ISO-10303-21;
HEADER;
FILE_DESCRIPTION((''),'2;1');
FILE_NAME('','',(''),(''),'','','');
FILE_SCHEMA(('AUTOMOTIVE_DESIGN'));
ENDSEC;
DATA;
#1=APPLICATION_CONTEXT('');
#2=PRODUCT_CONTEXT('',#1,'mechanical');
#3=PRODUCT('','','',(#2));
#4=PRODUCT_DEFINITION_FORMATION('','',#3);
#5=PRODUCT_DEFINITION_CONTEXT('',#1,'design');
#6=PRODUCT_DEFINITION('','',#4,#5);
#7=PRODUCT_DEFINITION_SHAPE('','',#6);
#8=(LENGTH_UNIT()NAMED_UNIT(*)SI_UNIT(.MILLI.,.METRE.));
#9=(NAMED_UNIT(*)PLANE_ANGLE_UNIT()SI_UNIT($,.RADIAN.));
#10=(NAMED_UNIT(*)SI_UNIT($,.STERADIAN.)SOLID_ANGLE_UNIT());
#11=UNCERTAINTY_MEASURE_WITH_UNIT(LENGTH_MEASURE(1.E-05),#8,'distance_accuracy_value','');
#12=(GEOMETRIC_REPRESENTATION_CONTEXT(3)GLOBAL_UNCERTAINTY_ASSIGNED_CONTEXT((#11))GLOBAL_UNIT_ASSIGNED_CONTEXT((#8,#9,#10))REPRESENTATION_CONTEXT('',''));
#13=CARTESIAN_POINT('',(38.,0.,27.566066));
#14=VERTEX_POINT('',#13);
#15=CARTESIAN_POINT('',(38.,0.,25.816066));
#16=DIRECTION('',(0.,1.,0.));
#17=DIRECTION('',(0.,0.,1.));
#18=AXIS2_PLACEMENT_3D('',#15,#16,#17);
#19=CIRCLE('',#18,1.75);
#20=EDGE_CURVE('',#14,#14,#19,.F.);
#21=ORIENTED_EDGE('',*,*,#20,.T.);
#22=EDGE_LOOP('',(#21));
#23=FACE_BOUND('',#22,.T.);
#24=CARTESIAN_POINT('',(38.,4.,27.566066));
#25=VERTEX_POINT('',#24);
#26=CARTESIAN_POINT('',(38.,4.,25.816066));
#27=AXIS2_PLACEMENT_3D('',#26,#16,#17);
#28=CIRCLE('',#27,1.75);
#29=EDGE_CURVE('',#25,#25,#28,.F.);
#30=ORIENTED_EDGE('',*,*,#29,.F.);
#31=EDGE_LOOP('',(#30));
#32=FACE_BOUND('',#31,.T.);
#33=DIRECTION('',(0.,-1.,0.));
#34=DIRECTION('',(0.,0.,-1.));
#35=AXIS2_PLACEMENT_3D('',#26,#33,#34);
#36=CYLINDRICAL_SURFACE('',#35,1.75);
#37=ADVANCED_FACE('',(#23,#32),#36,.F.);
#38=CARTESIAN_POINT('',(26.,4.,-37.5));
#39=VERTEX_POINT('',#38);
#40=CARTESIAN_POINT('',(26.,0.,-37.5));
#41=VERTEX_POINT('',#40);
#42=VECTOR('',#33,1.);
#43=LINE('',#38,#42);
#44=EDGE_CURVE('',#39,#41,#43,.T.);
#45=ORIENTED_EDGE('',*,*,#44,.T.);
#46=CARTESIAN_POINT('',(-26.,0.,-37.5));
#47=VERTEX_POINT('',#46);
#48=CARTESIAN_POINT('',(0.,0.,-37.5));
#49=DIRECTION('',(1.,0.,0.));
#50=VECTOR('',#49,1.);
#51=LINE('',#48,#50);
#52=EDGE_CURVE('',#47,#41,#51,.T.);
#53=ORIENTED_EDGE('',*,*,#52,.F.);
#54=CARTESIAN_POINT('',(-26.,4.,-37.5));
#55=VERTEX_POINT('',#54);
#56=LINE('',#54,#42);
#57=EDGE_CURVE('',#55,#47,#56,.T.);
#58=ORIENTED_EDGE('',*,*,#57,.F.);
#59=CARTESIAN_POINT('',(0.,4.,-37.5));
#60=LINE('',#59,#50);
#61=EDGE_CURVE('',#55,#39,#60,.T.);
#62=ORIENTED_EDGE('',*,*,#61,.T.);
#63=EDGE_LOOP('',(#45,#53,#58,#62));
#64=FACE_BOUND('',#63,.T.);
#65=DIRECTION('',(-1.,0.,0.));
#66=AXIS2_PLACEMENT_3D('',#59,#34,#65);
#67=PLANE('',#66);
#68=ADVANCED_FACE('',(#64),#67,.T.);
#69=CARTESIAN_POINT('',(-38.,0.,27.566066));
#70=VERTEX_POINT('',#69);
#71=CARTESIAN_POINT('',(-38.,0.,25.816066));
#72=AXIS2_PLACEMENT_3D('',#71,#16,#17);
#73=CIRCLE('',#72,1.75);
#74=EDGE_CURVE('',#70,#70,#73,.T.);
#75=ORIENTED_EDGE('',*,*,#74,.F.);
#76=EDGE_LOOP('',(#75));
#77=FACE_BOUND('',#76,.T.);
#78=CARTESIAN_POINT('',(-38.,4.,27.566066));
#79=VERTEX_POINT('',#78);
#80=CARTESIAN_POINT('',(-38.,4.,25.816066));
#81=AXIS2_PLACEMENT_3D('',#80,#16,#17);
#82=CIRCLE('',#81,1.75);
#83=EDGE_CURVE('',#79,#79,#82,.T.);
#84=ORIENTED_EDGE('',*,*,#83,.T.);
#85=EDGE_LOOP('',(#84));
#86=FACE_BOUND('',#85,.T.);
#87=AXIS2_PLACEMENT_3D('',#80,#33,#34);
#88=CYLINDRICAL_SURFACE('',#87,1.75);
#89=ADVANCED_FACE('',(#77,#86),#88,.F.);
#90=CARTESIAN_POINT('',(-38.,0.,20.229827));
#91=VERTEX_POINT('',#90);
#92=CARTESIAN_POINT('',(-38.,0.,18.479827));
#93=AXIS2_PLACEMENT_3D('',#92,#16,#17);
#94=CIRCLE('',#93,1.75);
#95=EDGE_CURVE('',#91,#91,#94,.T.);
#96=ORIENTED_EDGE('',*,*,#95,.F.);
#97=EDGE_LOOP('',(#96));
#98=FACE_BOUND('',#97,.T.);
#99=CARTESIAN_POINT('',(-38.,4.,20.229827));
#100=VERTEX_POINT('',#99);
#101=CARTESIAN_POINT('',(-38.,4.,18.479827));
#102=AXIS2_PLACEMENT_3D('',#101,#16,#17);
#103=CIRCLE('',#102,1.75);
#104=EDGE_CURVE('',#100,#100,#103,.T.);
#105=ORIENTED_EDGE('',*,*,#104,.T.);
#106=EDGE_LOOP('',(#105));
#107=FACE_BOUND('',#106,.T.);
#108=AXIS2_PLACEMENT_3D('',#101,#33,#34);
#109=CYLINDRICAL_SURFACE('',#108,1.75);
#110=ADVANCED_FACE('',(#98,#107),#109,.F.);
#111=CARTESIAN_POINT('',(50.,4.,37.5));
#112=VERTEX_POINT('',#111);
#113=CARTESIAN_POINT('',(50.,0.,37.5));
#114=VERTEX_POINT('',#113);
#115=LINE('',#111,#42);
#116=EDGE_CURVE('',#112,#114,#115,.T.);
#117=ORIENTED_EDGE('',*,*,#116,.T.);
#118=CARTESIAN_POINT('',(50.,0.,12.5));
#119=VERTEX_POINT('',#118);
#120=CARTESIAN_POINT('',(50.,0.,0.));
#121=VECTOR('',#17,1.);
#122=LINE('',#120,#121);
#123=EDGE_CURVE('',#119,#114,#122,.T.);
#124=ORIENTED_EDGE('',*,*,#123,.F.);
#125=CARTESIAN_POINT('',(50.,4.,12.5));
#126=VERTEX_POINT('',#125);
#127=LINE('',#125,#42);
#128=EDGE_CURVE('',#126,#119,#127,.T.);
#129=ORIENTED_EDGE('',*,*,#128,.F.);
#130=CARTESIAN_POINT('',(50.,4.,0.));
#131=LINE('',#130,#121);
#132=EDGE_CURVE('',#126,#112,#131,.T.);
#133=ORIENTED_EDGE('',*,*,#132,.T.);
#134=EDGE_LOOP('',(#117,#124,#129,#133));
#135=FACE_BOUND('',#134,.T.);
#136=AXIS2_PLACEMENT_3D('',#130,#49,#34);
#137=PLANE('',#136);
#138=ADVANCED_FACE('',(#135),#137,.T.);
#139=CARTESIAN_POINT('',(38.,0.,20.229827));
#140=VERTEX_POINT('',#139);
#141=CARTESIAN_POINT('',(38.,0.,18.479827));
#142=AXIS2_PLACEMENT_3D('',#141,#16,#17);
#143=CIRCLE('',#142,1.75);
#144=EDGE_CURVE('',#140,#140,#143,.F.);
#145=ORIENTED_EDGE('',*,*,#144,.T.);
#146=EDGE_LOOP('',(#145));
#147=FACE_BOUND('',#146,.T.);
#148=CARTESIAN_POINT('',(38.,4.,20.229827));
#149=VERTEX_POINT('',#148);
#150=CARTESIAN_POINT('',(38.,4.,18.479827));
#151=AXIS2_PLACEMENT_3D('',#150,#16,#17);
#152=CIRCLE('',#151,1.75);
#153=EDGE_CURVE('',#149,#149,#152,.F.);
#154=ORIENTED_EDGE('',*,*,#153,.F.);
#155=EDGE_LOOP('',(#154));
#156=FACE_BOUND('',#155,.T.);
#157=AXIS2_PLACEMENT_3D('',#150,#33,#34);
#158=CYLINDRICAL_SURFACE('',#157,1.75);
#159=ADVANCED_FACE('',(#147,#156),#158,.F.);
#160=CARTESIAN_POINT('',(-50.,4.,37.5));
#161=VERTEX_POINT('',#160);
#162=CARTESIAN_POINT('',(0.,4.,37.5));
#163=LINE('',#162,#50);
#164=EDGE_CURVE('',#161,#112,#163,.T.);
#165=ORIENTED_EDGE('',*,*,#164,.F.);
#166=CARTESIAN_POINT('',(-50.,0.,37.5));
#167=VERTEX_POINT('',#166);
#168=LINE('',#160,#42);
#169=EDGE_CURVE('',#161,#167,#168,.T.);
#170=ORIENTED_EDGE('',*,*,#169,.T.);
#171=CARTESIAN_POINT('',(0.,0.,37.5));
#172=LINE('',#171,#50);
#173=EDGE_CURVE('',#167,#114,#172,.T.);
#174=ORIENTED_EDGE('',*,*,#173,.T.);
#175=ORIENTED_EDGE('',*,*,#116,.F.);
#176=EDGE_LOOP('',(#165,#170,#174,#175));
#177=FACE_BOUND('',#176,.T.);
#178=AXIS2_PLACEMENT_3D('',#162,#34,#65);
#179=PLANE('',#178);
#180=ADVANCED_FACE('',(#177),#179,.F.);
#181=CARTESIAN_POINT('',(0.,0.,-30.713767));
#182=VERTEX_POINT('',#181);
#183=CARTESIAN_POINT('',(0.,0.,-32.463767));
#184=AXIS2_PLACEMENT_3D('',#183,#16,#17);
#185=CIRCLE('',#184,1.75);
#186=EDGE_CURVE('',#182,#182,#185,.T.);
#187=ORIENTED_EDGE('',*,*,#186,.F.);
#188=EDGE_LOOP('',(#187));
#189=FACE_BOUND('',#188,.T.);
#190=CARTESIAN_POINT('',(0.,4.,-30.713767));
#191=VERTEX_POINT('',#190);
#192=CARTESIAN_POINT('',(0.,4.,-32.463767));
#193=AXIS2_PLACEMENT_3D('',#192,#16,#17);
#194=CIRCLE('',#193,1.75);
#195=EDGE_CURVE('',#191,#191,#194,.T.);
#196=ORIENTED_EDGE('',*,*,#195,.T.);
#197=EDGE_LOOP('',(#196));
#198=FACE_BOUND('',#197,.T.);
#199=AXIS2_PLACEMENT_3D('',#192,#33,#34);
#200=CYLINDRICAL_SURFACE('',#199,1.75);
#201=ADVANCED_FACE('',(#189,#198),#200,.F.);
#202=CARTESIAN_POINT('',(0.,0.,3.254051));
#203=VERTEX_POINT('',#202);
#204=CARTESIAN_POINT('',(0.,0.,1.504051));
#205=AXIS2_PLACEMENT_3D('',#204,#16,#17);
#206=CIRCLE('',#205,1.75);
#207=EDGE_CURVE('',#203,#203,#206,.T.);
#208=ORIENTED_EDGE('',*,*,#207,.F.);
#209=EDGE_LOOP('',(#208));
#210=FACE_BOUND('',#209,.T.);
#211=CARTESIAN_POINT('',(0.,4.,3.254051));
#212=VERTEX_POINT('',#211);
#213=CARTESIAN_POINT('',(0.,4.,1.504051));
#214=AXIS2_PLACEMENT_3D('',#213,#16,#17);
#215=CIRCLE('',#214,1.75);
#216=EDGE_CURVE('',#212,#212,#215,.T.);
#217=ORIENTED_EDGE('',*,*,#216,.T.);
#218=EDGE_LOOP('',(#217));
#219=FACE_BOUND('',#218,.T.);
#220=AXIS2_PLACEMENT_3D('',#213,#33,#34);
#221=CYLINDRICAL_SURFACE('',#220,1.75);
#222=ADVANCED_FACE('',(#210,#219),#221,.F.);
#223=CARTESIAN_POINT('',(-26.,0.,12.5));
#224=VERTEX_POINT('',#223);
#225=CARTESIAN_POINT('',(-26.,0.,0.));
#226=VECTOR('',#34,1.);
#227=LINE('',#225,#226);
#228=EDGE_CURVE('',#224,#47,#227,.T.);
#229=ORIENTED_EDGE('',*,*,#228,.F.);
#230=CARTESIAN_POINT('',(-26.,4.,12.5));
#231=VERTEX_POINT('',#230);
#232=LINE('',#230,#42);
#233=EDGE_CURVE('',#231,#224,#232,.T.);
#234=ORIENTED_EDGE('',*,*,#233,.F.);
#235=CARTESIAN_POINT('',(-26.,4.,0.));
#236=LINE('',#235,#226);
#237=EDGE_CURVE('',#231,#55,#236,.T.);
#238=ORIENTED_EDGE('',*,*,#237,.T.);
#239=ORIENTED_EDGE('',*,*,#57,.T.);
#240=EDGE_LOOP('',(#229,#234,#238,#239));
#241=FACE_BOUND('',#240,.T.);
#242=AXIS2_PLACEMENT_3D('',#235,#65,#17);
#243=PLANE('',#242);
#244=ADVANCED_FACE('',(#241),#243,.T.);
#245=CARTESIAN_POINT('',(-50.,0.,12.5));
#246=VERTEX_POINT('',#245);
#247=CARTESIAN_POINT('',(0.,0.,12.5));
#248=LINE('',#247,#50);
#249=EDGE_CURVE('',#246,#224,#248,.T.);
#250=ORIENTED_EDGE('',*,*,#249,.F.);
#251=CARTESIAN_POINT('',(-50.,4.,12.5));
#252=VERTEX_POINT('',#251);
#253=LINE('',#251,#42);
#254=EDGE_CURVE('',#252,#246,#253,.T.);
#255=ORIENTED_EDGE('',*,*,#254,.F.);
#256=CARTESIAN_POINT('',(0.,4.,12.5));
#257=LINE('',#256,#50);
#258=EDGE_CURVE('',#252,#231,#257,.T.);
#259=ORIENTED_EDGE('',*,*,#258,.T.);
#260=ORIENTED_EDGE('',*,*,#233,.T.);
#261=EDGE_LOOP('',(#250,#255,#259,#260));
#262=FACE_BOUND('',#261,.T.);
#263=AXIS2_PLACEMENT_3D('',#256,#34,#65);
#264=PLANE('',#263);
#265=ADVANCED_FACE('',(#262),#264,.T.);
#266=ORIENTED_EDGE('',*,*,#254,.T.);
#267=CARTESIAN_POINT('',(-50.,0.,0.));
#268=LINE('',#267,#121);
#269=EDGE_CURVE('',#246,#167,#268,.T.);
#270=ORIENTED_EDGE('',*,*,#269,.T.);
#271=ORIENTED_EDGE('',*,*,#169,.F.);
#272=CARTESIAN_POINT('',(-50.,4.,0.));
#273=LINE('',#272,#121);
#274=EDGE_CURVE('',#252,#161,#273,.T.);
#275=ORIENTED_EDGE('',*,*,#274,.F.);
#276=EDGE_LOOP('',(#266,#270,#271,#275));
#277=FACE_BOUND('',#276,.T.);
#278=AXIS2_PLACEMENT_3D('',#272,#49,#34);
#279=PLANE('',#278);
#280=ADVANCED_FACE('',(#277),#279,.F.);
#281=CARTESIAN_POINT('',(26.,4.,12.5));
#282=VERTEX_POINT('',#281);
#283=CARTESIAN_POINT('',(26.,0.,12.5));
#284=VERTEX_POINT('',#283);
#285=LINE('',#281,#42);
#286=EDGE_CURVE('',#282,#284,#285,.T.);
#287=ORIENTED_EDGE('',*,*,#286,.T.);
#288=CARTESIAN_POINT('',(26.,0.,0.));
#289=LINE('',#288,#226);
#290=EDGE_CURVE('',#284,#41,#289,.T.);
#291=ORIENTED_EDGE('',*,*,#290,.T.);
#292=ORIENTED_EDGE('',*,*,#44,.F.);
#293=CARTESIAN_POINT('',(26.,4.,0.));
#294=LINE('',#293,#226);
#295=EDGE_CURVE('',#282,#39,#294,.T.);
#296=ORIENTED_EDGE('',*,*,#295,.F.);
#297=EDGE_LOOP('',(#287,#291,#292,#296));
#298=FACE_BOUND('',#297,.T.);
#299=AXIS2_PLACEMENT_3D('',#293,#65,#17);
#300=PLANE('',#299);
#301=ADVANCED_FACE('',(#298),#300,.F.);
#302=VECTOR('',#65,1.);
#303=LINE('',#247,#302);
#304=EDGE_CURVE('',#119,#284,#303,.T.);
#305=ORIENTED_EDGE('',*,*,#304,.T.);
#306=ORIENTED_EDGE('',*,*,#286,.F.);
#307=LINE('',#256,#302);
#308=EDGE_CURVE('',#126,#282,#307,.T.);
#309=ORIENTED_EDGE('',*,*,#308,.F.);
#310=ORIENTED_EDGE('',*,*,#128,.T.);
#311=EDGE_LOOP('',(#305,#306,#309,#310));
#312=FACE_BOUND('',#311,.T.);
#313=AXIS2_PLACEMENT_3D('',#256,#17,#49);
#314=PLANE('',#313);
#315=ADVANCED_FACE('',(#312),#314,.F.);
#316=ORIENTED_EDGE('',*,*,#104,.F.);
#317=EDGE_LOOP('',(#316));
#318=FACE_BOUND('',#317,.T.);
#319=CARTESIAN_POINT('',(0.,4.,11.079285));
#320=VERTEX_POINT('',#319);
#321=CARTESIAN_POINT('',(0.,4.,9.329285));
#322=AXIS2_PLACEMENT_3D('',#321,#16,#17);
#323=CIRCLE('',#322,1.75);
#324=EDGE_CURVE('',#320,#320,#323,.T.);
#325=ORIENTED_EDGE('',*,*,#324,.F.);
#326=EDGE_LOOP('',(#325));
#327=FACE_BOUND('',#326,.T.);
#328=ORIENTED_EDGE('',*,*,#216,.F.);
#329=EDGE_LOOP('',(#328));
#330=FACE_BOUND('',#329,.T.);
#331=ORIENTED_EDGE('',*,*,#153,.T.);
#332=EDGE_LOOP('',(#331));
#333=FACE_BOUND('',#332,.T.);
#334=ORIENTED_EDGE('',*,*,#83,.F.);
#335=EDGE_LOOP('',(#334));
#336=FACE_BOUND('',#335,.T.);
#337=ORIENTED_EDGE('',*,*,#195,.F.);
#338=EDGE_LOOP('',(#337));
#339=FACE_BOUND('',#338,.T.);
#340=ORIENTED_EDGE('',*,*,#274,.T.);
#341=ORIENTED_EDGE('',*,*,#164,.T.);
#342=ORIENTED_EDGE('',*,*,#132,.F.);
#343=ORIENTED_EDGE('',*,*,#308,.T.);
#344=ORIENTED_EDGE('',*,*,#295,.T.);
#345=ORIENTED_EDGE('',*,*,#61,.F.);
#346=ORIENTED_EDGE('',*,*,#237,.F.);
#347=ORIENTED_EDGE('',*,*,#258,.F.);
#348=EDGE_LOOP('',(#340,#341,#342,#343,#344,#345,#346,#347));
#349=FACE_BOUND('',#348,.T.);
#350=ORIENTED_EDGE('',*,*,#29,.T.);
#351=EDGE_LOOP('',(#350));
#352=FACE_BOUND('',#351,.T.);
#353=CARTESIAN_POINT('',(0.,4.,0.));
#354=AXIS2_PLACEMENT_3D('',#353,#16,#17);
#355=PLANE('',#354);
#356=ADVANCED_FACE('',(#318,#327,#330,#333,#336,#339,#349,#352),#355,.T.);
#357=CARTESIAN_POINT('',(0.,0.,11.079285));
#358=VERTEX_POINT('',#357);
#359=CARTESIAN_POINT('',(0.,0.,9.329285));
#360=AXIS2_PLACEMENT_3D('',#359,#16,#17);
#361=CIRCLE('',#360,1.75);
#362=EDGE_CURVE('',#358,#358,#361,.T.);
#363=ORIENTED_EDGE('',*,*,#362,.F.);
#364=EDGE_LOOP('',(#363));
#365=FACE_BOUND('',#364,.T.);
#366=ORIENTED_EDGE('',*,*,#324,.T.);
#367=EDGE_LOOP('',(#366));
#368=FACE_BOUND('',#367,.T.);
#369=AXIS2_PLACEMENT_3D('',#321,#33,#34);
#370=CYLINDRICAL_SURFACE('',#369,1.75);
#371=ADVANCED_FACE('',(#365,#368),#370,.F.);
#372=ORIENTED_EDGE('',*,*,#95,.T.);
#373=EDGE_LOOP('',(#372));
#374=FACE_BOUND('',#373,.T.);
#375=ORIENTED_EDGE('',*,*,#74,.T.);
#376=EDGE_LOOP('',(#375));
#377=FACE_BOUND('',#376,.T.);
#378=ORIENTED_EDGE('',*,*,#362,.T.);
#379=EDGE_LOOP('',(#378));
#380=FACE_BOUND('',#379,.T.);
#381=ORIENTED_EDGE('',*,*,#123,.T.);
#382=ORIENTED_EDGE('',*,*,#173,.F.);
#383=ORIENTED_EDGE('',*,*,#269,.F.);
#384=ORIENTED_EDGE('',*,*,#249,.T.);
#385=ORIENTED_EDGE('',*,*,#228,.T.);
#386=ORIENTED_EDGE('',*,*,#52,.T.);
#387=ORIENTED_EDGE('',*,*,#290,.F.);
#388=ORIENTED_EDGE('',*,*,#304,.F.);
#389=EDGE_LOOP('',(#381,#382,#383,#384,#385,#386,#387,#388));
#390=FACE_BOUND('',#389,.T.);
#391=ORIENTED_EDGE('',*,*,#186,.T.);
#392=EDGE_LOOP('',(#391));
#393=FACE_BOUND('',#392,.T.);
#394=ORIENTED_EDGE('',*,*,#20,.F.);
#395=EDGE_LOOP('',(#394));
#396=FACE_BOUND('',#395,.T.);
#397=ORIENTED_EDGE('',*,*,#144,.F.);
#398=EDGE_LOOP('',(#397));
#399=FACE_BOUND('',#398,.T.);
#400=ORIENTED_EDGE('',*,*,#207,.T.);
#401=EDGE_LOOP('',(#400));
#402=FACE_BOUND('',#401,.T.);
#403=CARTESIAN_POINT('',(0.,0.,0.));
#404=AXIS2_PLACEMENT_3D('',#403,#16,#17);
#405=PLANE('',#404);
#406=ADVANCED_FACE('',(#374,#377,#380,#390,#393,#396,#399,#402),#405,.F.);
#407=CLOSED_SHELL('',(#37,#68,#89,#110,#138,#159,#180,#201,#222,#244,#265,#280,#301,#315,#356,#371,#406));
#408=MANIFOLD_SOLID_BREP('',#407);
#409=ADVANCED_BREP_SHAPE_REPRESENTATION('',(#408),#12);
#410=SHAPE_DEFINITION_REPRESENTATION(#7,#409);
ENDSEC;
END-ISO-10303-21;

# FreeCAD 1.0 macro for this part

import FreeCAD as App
import Part
import Sketcher


def add_polygon(sketch, points):
    """Adds a closed chain of lines whose ends are joined by coincident constraints."""
    first, n = sketch.GeometryCount, len(points)
    for a, b in zip(points, points[1:] + points[:1]):
        sketch.addGeometry(Part.LineSegment(App.Vector(*a, 0), App.Vector(*b, 0)), False)
    for i in range(n):
        sketch.addConstraint(Sketcher.Constraint("Coincident", first + i, 2, first + (i + 1) % n, 1))

doc = App.newDocument("Part")
body = doc.addObject("PartDesign::Body", "Body")

sketch1 = body.newObject("Sketcher::SketchObject", "Sketch")
sketch1.AttachmentSupport = (doc.getObject("XZ_Plane"), [""])
sketch1.MapMode = "FlatFace"
add_polygon(sketch1, [(-26, 12.5), (-50, 12.5), (-50, 37.5), (50, 37.5), (50, 12.5), (26, 12.5), (26, -37.5), (-26, -37.5)])
sketch1.addGeometry(Part.Circle(App.Vector(-38, 25.8, 0), App.Vector(0, 0, 1), 1.8), False)
sketch1.addGeometry(Part.Circle(App.Vector(-38, 18.5, 0), App.Vector(0, 0, 1), 1.8), False)
sketch1.addGeometry(Part.Circle(App.Vector(38, 25.8, 0), App.Vector(0, 0, 1), 1.8), False)
sketch1.addGeometry(Part.Circle(App.Vector(38, 18.5, 0), App.Vector(0, 0, 1), 1.8), False)
sketch1.addGeometry(Part.Circle(App.Vector(0, 9.3, 0), App.Vector(0, 0, 1), 1.8), False)
sketch1.addGeometry(Part.Circle(App.Vector(0, 1.5, 0), App.Vector(0, 0, 1), 1.8), False)
sketch1.addGeometry(Part.Circle(App.Vector(0, -32.5, 0), App.Vector(0, 0, 1), 1.8), False)
sketch1.addConstraint([
    Sketcher.Constraint("Horizontal", 0),
    Sketcher.Constraint("Vertical", 1),
    Sketcher.Constraint("Horizontal", 2),
    Sketcher.Constraint("Vertical", 3),
    Sketcher.Constraint("Horizontal", 4),
    Sketcher.Constraint("Vertical", 5),
    Sketcher.Constraint("Horizontal", 6),
    Sketcher.Constraint("Vertical", 7),
    Sketcher.Constraint("Equal", 8, 9),
    Sketcher.Constraint("Equal", 9, 10),
    Sketcher.Constraint("Equal", 10, 11),
    Sketcher.Constraint("Equal", 11, 12),
    Sketcher.Constraint("Equal", 12, 13),
    Sketcher.Constraint("Equal", 13, 14),
    Sketcher.Constraint("Symmetric", 8, 3, 10, 3, -2),
    Sketcher.Constraint("Symmetric", 9, 3, 11, 3, -2),
    Sketcher.Constraint("Symmetric", 0, 2, 3, 2, -2),
    Sketcher.Constraint("PointOnObject", 12, 3, -2),
    Sketcher.Constraint("PointOnObject", 13, 3, -2),
    Sketcher.Constraint("PointOnObject", 14, 3, -2),
    Sketcher.Constraint("Vertical", 8, 3, 9, 3),
    Sketcher.Constraint("Equal", 0, 4),
    Sketcher.Constraint("Diameter", 8, 3.5),
    Sketcher.Constraint("DistanceX", 0, 2, 0, 1, 24.0),
    Sketcher.Constraint("DistanceX", 2, 1, 2, 2, 100.0),
    Sketcher.Constraint("DistanceY", 1, 1, 1, 2, 25.0),
    Sketcher.Constraint("DistanceY", 5, 2, 5, 1, 50.0),
    Sketcher.Constraint("DistanceX", 8, 3, -1, 1, 38.0),
    Sketcher.Constraint("DistanceY", -1, 1, 0, 2, 12.5),
    Sketcher.Constraint("DistanceY", -1, 1, 13, 3, 1.504051),
    Sketcher.Constraint("DistanceY", 9, 3, 8, 3, 7.336239),
    Sketcher.Constraint("DistanceY", 12, 3, 9, 3, 9.150542),
    Sketcher.Constraint("DistanceY", 14, 3, 13, 3, 33.967818),
    Sketcher.Constraint("DistanceY", -1, 1, 8, 3, 25.816066),
])
pad1 = body.newObject("PartDesign::Pad", "Pad")
pad1.Profile = sketch1
pad1.Length = 4
pad1.Reversed = True

doc.recompute()
